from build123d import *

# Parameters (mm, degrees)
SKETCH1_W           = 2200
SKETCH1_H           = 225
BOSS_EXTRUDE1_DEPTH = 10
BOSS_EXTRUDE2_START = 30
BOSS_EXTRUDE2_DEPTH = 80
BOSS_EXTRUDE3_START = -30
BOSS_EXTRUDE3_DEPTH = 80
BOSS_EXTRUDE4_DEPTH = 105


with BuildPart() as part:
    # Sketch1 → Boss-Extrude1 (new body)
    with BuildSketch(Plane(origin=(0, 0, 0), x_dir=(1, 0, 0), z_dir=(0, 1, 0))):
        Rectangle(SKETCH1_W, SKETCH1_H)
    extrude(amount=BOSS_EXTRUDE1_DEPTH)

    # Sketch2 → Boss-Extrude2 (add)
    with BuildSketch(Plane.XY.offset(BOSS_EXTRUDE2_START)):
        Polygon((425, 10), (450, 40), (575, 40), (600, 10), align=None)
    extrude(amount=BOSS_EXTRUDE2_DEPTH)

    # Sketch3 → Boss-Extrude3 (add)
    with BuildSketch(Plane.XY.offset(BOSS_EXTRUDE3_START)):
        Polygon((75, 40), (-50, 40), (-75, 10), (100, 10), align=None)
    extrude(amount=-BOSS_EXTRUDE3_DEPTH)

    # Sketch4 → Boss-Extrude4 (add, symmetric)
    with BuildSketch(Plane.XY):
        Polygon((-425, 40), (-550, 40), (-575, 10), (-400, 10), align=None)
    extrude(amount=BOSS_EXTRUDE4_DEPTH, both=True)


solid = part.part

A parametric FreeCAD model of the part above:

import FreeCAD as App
import Part
import Sketcher
Q = App.Units.Quantity


def add_polygon(sketch, points):
    """Adds a closed chain of lines whose ends are joined by coincident constraints."""
    first, n = sketch.GeometryCount, len(points)
    for a, b in zip(points, points[1:] + points[:1]):
        sketch.addGeometry(Part.LineSegment(App.Vector(*a, 0), App.Vector(*b, 0)), False)
    for i in range(n):
        sketch.addConstraint(Sketcher.Constraint("Coincident", first + i, 2, first + (i + 1) % n, 1))

doc = App.newDocument("Part")
body = doc.addObject("PartDesign::Body", "Body")

sketch1 = body.newObject("Sketcher::SketchObject", "Sketch")
sketch1.AttachmentSupport = (doc.getObject("XZ_Plane"), [""])
sketch1.MapMode = "FlatFace"
add_polygon(sketch1, [(-1100, -112), (-1100, 112), (1100, 112), (1100, -112)])
sketch1.addConstraint(Sketcher.Constraint("Vertical", 0))
sketch1.addConstraint(Sketcher.Constraint("Horizontal", 1))
sketch1.addConstraint(Sketcher.Constraint("Vertical", 2))
sketch1.addConstraint(Sketcher.Constraint("Horizontal", 3))
sketch1.addConstraint(Sketcher.Constraint("Symmetric", 0, 2, 2, 2, -1, 1))
sketch1.addConstraint(Sketcher.Constraint("DistanceX", 1, 1, 1, 2, Q("2200 mm")))
sketch1.addConstraint(Sketcher.Constraint("DistanceY", 0, 1, 0, 2, Q("225 mm")))
pad1 = body.newObject("PartDesign::Pad", "Pad")
pad1.Profile = sketch1
pad1.Length = 10
pad1.Reversed = True

sketch2 = body.newObject("Sketcher::SketchObject", "Sketch001")
sketch2.AttachmentSupport = (doc.getObject("XY_Plane"), [""])
sketch2.MapMode = "FlatFace"
sketch2.AttachmentOffset = App.Placement(App.Vector(0, 0, 30), App.Rotation())
add_polygon(sketch2, [(450, 40), (425, 10), (600, 10), (575, 40)])
sketch2.addConstraint(Sketcher.Constraint("Horizontal", 1))
sketch2.addConstraint(Sketcher.Constraint("Horizontal", 3))
sketch2.addConstraint(Sketcher.Constraint("Equal", 0, 2))
sketch2.addConstraint(Sketcher.Constraint("DistanceX", 1, 1, 1, 2, Q("175 mm")))
sketch2.addConstraint(Sketcher.Constraint("DistanceX", 3, 2, 3, 1, Q("125 mm")))
sketch2.addConstraint(Sketcher.Constraint("DistanceX", -1, 1, 0, 2, Q("425 mm")))
sketch2.addConstraint(Sketcher.Constraint("DistanceY", -1, 1, 0, 2, Q("10 mm")))
sketch2.addConstraint(Sketcher.Constraint("DistanceY", -1, 1, 2, 2, Q("40 mm")))
pad2 = body.newObject("PartDesign::Pad", "Pad001")
pad2.Profile = sketch2
pad2.Length = 80

sketch3 = body.newObject("Sketcher::SketchObject", "Sketch002")
sketch3.AttachmentSupport = (doc.getObject("XY_Plane"), [""])
sketch3.MapMode = "FlatFace"
sketch3.AttachmentOffset = App.Placement(App.Vector(0, 0, -30), App.Rotation())
add_polygon(sketch3, [(75, 40), (-50, 40), (-75, 10), (100, 10)])
sketch3.addConstraint(Sketcher.Constraint("Horizontal", 0))
sketch3.addConstraint(Sketcher.Constraint("Horizontal", 2))
sketch3.addConstraint(Sketcher.Constraint("Equal", 1, 3))
sketch3.addConstraint(Sketcher.Constraint("DistanceX", 0, 2, 0, 1, Q("125 mm")))
sketch3.addConstraint(Sketcher.Constraint("DistanceX", 2, 1, 2, 2, Q("175 mm")))
sketch3.addConstraint(Sketcher.Constraint("DistanceX", 0, 2, -1, 1, Q("50 mm")))
sketch3.addConstraint(Sketcher.Constraint("DistanceY", -1, 1, 0, 2, Q("40 mm")))
sketch3.addConstraint(Sketcher.Constraint("DistanceY", -1, 1, 1, 2, Q("10 mm")))
pad3 = body.newObject("PartDesign::Pad", "Pad002")
pad3.Profile = sketch3
pad3.Length = 80
pad3.Reversed = True

sketch4 = body.newObject("Sketcher::SketchObject", "Sketch003")
sketch4.AttachmentSupport = (doc.getObject("XY_Plane"), [""])
sketch4.MapMode = "FlatFace"
add_polygon(sketch4, [(-425, 40), (-550, 40), (-575, 10), (-400, 10)])
sketch4.addConstraint(Sketcher.Constraint("Horizontal", 0))
sketch4.addConstraint(Sketcher.Constraint("Horizontal", 2))
sketch4.addConstraint(Sketcher.Constraint("Equal", 1, 3))
sketch4.addConstraint(Sketcher.Constraint("DistanceX", 0, 2, 0, 1, Q("125 mm")))
sketch4.addConstraint(Sketcher.Constraint("DistanceX", 2, 1, 2, 2, Q("175 mm")))
sketch4.addConstraint(Sketcher.Constraint("DistanceX", 0, 2, -1, 1, Q("550 mm")))
sketch4.addConstraint(Sketcher.Constraint("DistanceY", -1, 1, 0, 2, Q("40 mm")))
sketch4.addConstraint(Sketcher.Constraint("DistanceY", -1, 1, 1, 2, Q("10 mm")))
pad4 = body.newObject("PartDesign::Pad", "Pad003")
pad4.Profile = sketch4
pad4.Length = 210
pad4.Midplane = True

doc.recompute()
